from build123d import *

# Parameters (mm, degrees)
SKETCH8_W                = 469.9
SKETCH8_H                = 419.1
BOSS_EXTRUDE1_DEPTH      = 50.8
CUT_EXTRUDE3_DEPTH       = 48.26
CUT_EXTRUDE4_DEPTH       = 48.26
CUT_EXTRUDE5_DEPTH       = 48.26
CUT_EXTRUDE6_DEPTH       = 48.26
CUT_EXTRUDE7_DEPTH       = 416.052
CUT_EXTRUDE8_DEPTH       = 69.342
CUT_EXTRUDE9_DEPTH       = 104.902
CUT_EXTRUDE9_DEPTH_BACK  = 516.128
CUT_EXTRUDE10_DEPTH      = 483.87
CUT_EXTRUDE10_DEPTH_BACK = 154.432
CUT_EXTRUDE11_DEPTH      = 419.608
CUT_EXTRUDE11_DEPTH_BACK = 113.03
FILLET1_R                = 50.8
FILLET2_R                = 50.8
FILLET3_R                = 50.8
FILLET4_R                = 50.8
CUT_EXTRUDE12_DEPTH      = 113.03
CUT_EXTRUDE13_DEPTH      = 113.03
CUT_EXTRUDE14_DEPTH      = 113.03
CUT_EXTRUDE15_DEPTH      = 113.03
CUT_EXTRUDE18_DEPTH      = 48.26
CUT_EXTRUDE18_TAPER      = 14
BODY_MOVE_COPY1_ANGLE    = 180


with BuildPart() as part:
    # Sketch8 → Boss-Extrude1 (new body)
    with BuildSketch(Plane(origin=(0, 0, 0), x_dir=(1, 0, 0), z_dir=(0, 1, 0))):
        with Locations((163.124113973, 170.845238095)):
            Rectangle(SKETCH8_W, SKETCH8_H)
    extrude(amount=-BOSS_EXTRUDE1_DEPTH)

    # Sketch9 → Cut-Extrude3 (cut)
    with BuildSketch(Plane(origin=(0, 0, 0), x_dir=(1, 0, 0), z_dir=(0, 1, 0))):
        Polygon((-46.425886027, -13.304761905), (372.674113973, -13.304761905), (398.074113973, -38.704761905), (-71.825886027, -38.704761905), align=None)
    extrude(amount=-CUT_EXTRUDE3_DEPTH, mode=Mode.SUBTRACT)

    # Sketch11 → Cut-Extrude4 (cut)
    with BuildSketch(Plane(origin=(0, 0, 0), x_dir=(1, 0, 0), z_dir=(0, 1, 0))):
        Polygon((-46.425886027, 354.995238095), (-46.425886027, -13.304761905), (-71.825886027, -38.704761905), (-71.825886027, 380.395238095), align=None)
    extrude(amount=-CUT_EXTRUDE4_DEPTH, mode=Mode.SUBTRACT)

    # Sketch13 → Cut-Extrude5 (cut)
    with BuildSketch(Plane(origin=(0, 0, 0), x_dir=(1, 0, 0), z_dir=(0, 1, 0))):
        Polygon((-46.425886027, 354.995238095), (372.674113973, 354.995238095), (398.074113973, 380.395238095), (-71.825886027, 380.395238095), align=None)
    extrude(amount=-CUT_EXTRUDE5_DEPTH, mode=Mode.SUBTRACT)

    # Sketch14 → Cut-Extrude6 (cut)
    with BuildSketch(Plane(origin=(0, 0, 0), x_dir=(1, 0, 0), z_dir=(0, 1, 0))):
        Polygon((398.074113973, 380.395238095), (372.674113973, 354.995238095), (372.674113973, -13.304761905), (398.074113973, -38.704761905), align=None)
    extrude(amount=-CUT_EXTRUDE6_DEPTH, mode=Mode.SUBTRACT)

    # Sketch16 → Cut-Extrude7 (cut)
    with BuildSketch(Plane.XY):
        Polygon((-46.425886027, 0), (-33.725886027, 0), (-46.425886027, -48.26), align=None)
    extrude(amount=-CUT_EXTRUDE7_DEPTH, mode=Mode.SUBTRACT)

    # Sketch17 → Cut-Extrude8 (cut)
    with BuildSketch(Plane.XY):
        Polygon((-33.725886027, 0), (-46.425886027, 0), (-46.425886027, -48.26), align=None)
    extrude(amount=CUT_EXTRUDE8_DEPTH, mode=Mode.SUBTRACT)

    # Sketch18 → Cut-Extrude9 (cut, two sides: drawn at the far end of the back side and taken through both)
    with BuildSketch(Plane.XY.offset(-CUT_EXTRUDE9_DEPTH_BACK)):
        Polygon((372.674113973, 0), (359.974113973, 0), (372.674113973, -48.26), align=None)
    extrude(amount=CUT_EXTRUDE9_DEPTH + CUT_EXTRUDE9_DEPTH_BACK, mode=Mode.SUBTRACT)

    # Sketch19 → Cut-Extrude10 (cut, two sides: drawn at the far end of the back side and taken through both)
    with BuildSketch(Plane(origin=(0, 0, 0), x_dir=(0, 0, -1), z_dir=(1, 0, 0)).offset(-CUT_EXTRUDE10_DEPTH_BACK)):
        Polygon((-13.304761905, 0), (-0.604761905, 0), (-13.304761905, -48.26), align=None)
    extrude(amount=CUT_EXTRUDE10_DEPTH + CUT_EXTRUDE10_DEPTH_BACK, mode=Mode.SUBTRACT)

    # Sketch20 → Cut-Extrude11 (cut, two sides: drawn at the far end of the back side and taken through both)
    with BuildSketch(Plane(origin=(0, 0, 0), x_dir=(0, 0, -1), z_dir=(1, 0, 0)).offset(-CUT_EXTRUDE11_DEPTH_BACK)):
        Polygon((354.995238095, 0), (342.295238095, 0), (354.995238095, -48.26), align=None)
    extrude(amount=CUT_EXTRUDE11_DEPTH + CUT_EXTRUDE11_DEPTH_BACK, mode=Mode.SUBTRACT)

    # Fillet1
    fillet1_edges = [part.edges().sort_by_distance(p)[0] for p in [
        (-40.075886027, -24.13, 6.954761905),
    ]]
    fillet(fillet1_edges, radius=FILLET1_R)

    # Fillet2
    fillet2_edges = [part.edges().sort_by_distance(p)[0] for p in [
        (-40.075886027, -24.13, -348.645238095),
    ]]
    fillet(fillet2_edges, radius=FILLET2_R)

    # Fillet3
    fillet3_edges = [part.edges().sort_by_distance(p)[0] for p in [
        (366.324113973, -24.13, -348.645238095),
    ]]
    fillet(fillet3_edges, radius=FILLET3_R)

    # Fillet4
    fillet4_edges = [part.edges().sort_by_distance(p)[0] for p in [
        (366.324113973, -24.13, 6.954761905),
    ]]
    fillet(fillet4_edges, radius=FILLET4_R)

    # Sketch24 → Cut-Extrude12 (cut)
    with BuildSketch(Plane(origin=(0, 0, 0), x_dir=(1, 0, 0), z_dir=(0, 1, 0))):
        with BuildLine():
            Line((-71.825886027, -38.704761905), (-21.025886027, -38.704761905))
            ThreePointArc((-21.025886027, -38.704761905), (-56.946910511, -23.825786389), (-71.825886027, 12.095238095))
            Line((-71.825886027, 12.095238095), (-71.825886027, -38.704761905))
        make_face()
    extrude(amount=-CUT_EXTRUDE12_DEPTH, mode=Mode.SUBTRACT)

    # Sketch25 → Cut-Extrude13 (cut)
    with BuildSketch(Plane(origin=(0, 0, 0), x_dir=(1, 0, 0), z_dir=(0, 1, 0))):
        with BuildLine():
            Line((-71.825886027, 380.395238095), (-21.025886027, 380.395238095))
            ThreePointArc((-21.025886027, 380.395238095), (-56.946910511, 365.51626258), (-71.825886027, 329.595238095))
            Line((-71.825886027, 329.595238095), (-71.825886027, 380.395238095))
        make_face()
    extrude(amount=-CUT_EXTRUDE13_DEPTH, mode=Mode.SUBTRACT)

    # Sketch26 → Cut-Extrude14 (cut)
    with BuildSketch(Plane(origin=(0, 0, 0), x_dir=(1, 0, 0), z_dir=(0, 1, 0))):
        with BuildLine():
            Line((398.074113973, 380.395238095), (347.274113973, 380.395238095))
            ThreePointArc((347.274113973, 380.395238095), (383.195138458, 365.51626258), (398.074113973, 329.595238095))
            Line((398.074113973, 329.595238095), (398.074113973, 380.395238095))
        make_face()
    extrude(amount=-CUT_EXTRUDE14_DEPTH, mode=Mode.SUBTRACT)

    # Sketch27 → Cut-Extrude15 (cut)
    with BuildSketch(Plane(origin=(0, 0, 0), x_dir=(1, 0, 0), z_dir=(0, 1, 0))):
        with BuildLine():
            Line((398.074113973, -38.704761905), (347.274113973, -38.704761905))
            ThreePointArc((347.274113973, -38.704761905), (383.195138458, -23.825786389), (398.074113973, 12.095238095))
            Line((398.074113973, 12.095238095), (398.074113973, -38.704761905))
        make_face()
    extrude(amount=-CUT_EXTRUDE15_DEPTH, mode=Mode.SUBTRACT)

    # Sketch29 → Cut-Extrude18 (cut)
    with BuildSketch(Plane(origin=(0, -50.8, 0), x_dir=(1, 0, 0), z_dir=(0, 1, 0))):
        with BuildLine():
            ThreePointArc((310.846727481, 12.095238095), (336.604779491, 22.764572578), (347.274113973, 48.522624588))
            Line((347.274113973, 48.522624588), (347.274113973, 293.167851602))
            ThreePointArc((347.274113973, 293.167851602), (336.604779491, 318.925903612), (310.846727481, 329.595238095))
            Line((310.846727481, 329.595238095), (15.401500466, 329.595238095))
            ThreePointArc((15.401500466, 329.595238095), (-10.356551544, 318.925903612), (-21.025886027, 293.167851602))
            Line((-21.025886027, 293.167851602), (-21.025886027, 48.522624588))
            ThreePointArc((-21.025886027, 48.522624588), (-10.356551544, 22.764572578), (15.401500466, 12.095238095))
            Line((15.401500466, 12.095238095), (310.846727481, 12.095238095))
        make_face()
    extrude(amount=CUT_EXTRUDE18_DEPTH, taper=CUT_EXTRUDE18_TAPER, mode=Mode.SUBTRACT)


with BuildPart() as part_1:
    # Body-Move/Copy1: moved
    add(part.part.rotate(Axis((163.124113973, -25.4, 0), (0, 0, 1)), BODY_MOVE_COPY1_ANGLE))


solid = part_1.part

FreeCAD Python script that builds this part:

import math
import FreeCAD as App
import Part
import Sketcher

V = App.Vector
Q = App.Units.Quantity


def edges_at(feature, points):
    """Names of the edges that pass closest to the given points."""
    edges = feature.Shape.Edges
    near = lambda p: min(range(len(edges)), key=lambda i: edges[i].distToShape(Part.Vertex(*p))[0])
    return sorted({f"Edge{near(p) + 1}" for p in points})


def add_polygon(sketch, points):
    """Adds a closed chain of lines whose ends are joined by coincident constraints."""
    first, n = sketch.GeometryCount, len(points)
    for a, b in zip(points, points[1:] + points[:1]):
        sketch.addGeometry(Part.LineSegment(App.Vector(*a, 0), App.Vector(*b, 0)), False)
    for i in range(n):
        sketch.addConstraint(Sketcher.Constraint("Coincident", first + i, 2, first + (i + 1) % n, 1))

doc = App.newDocument("Part")
body = doc.addObject("PartDesign::Body", "Body")

# Sketch on XZ plane
sketch1 = body.newObject("Sketcher::SketchObject", "Sketch")
sketch1.AttachmentSupport = (doc.getObject("XZ_Plane"), [""])
sketch1.MapMode = "FlatFace"
add_polygon(sketch1, [(-72, -380), (-72, 39), (398, 39), (398, -380)])  # lines 0-3
sketch1.addConstraint([
    Sketcher.Constraint("Vertical", 0),
    Sketcher.Constraint("Horizontal", 1),
    Sketcher.Constraint("Vertical", 2),
    Sketcher.Constraint("Horizontal", 3),
    Sketcher.Constraint("DistanceX", 1, 1, 1, 2, Q("18.5 in")),
    Sketcher.Constraint("DistanceY", 0, 1, 0, 2, Q("16.5 in")),
    Sketcher.Constraint("DistanceY", -1, 1, 0, 2, 38.704762),
    Sketcher.Constraint("DistanceX", 0, 2, -1, 1, 71.825886),
])
pad1 = body.newObject("PartDesign::Pad", "Pad")
pad1.Profile = sketch1
pad1.Length = Q("2 in")

# Sketch on XZ plane
sketch2 = body.newObject("Sketcher::SketchObject", "Sketch001")
sketch2.AttachmentSupport = (doc.getObject("XZ_Plane"), [""])
sketch2.MapMode = "FlatFace"
add_polygon(sketch2, [(373, 13), (-46, 13), (-72, 39), (398, 39)])  # lines 0-3
sketch2.addConstraint([
    Sketcher.Constraint("Horizontal", 0),
    Sketcher.Constraint("Horizontal", 2),
    Sketcher.Constraint("Perpendicular", 1, 3),
    Sketcher.Constraint("Equal", 1, 3),
    Sketcher.Constraint("DistanceX", 0, 2, 0, 1, Q("16.5 in")),
    Sketcher.Constraint("DistanceX", 2, 1, 2, 2, Q("18.5 in")),
    Sketcher.Constraint("DistanceY", -1, 1, 0, 2, 13.304762),
    Sketcher.Constraint("DistanceX", 0, 2, -1, 1, 46.425886),
])
pocket1 = body.newObject("PartDesign::Pocket", "Pocket")
pocket1.Profile = sketch2
pocket1.Length = Q("1.9 in")
pocket1.Reversed = True

# Sketch on XZ plane
sketch3 = body.newObject("Sketcher::SketchObject", "Sketch002")
sketch3.AttachmentSupport = (doc.getObject("XZ_Plane"), [""])
sketch3.MapMode = "FlatFace"
add_polygon(sketch3, [(-46, 13), (-46, -355), (-72, -380), (-72, 39)])  # lines 0-3
sketch3.addConstraint([
    Sketcher.Constraint("Vertical", 0),
    Sketcher.Constraint("Vertical", 2),
    Sketcher.Constraint("Perpendicular", 1, 3),
    Sketcher.Constraint("Equal", 1, 3),
    Sketcher.Constraint("DistanceY", 0, 2, 0, 1, Q("14.5 in")),
    Sketcher.Constraint("DistanceY", 2, 1, 2, 2, Q("16.5 in")),
    Sketcher.Constraint("DistanceY", 0, 2, -1, 1, 354.995238),
    Sketcher.Constraint("DistanceX", 0, 2, -1, 1, 46.425886),
])
pocket2 = body.newObject("PartDesign::Pocket", "Pocket001")
pocket2.Profile = sketch3
pocket2.Length = Q("1.9 in")
pocket2.Reversed = True

# Sketch on XZ plane
sketch4 = body.newObject("Sketcher::SketchObject", "Sketch003")
sketch4.AttachmentSupport = (doc.getObject("XZ_Plane"), [""])
sketch4.MapMode = "FlatFace"
add_polygon(sketch4, [(-46, -355), (373, -355), (398, -380), (-72, -380)])  # lines 0-3
sketch4.addConstraint([
    Sketcher.Constraint("Horizontal", 0),
    Sketcher.Constraint("Horizontal", 2),
    Sketcher.Constraint("Perpendicular", 1, 3),
    Sketcher.Constraint("Equal", 1, 3),
    Sketcher.Constraint("DistanceX", 0, 1, 0, 2, Q("16.5 in")),
    Sketcher.Constraint("DistanceX", 2, 2, 2, 1, Q("18.5 in")),
    Sketcher.Constraint("DistanceY", 0, 2, -1, 1, 354.995238),
    Sketcher.Constraint("DistanceX", -1, 1, 0, 2, 372.674114),
])
pocket3 = body.newObject("PartDesign::Pocket", "Pocket002")
pocket3.Profile = sketch4
pocket3.Length = Q("1.9 in")
pocket3.Reversed = True

# Sketch on XZ plane
sketch5 = body.newObject("Sketcher::SketchObject", "Sketch004")
sketch5.AttachmentSupport = (doc.getObject("XZ_Plane"), [""])
sketch5.MapMode = "FlatFace"
add_polygon(sketch5, [(398, -380), (373, -355), (373, 13), (398, 39)])  # lines 0-3
sketch5.addConstraint([
    Sketcher.Constraint("Vertical", 1),
    Sketcher.Constraint("Vertical", 3),
    Sketcher.Constraint("Perpendicular", 0, 2),
    Sketcher.Constraint("Equal", 0, 2),
    Sketcher.Constraint("DistanceY", 1, 1, 1, 2, Q("14.5 in")),
    Sketcher.Constraint("DistanceY", 3, 2, 3, 1, Q("16.5 in")),
    Sketcher.Constraint("DistanceY", 0, 2, -1, 1, 354.995238),
    Sketcher.Constraint("DistanceX", -1, 1, 0, 2, 372.674114),
])
pocket4 = body.newObject("PartDesign::Pocket", "Pocket003")
pocket4.Profile = sketch5
pocket4.Length = Q("1.9 in")
pocket4.Reversed = True

# Sketch on XY plane
sketch6 = body.newObject("Sketcher::SketchObject", "Sketch005")
sketch6.AttachmentSupport = (doc.getObject("XY_Plane"), [""])
sketch6.MapMode = "FlatFace"
add_polygon(sketch6, [(-34, 0), (-46, 0), (-46, -48)])  # lines 0-2
sketch6.addConstraint([
    Sketcher.Constraint("Horizontal", 0),
    Sketcher.Constraint("Vertical", 1),
    Sketcher.Constraint("PointOnObject", 0, 2, -1),
    Sketcher.Constraint("DistanceX", 0, 2, 0, 1, Q("0.5 in")),
    Sketcher.Constraint("DistanceY", 1, 2, 1, 1, Q("1.9 in")),
    Sketcher.Constraint("DistanceX", 0, 2, -1, 1, 46.425886),
])
pocket5 = body.newObject("PartDesign::Pocket", "Pocket004")
pocket5.Profile = sketch6
pocket5.Length = Q("16.38 in")

# Sketch on XY plane
sketch7 = body.newObject("Sketcher::SketchObject", "Sketch006")
sketch7.AttachmentSupport = (doc.getObject("XY_Plane"), [""])
sketch7.MapMode = "FlatFace"
add_polygon(sketch7, [(-34, 0), (-46, 0), (-46, -48)])  # lines 0-2
sketch7.addConstraint([
    Sketcher.Constraint("Horizontal", 0),
    Sketcher.Constraint("Vertical", 1),
    Sketcher.Constraint("PointOnObject", 0, 2, -1),
    Sketcher.Constraint("DistanceX", 0, 2, 0, 1, Q("0.5 in")),
    Sketcher.Constraint("DistanceY", 1, 2, 1, 1, Q("1.9 in")),
    Sketcher.Constraint("DistanceX", 0, 2, -1, 1, 46.425886),
])
pocket6 = body.newObject("PartDesign::Pocket", "Pocket005")
pocket6.Profile = sketch7
pocket6.Length = Q("2.73 in")
pocket6.Reversed = True

# Sketch on XY plane
sketch8 = body.newObject("Sketcher::SketchObject", "Sketch007")
sketch8.AttachmentSupport = (doc.getObject("XY_Plane"), [""])
sketch8.MapMode = "FlatFace"
add_polygon(sketch8, [(373, 0), (360, 0), (373, -48)])  # lines 0-2
sketch8.addConstraint([
    Sketcher.Constraint("Horizontal", 0),
    Sketcher.Constraint("Vertical", 2),
    Sketcher.Constraint("PointOnObject", 0, 2, -1),
    Sketcher.Constraint("DistanceX", 0, 2, 0, 1, Q("0.5 in")),
    Sketcher.Constraint("DistanceY", 2, 1, 2, 2, Q("1.9 in")),
    Sketcher.Constraint("DistanceX", -1, 1, 0, 2, 359.974114),
])
pocket7 = body.newObject("PartDesign::Pocket", "Pocket006")
pocket7.Profile = sketch8
pocket7.Type = "ThroughAll"
pocket7.Midplane = True

# Sketch on YZ plane
sketch9 = body.newObject("Sketcher::SketchObject", "Sketch008")
sketch9.AttachmentSupport = (doc.getObject("YZ_Plane"), [""])
sketch9.MapMode = "FlatFace"
add_polygon(sketch9, [(0, 1), (0, 13), (-48, 13)])  # lines 0-2
sketch9.addConstraint([
    Sketcher.Constraint("Vertical", 0),
    Sketcher.Constraint("Horizontal", 1),
    Sketcher.Constraint("PointOnObject", 0, 2, -2),
    Sketcher.Constraint("DistanceX", 1, 2, 1, 1, Q("1.9 in")),
    Sketcher.Constraint("DistanceY", 0, 1, 0, 2, Q("0.5 in")),
    Sketcher.Constraint("DistanceY", -1, 1, 0, 2, 13.304762),
])
pocket8 = body.newObject("PartDesign::Pocket", "Pocket007")
pocket8.Profile = sketch9
pocket8.Type = "ThroughAll"
pocket8.Midplane = True

# Sketch on YZ plane
sketch10 = body.newObject("Sketcher::SketchObject", "Sketch009")
sketch10.AttachmentSupport = (doc.getObject("YZ_Plane"), [""])
sketch10.MapMode = "FlatFace"
add_polygon(sketch10, [(0, -355), (0, -342), (-48, -355)])  # lines 0-2
sketch10.addConstraint([
    Sketcher.Constraint("Vertical", 0),
    Sketcher.Constraint("Horizontal", 2),
    Sketcher.Constraint("PointOnObject", 0, 2, -2),
    Sketcher.Constraint("DistanceX", 2, 1, 2, 2, Q("1.9 in")),
    Sketcher.Constraint("DistanceY", 0, 1, 0, 2, Q("0.5 in")),
    Sketcher.Constraint("DistanceY", 0, 2, -1, 1, 342.295238),
])
pocket9 = body.newObject("PartDesign::Pocket", "Pocket008")
pocket9.Profile = sketch10
pocket9.Type = "ThroughAll"
pocket9.Midplane = True
doc.recompute()

fillet = body.newObject("PartDesign::Fillet", "Fillet")
fillet.Base = (pocket9, edges_at(pocket9, [(-40.076, -24.13, 6.955)]))
fillet.Radius = Q("2 in")
doc.recompute()

fillet2 = body.newObject("PartDesign::Fillet", "Fillet001")
fillet2.Base = (fillet, edges_at(fillet, [(-40.076, -24.13, -348.645)]))
fillet2.Radius = Q("2 in")
doc.recompute()

fillet3 = body.newObject("PartDesign::Fillet", "Fillet002")
fillet3.Base = (fillet2, edges_at(fillet2, [(366.324, -24.13, -348.645)]))
fillet3.Radius = Q("2 in")
doc.recompute()

fillet4 = body.newObject("PartDesign::Fillet", "Fillet003")
fillet4.Base = (fillet3, edges_at(fillet3, [(366.324, -24.13, 6.955)]))
fillet4.Radius = Q("2 in")

# Sketch on XZ plane
sketch11 = body.newObject("Sketcher::SketchObject", "Sketch010")
sketch11.AttachmentSupport = (doc.getObject("XZ_Plane"), [""])
sketch11.MapMode = "FlatFace"
sketch11.addGeometry([
    Part.LineSegment(V(-72, 39, 0), V(-21, 39, 0)),
    Part.ArcOfCircle(Part.Circle(V(-21, -12, 0), V(0, 0, 1), 51), math.radians(90), math.radians(180)),
    Part.LineSegment(V(-72, -12, 0), V(-72, 39, 0)),
], False)
sketch11.addConstraint([
    Sketcher.Constraint("Tangent", 0, 2, 1, 1),
    Sketcher.Constraint("Tangent", 1, 2, 2, 1),
    Sketcher.Constraint("Coincident", 2, 2, 0, 1),
    Sketcher.Constraint("Horizontal", 0),
    Sketcher.Constraint("Vertical", 2),
    Sketcher.Constraint("Radius", 1, Q("2 in")),
    Sketcher.Constraint("DistanceY", 1, 3, -1, 1, 12.095238),
    Sketcher.Constraint("DistanceX", 1, 3, -1, 1, 21.025886),
])
pocket10 = body.newObject("PartDesign::Pocket", "Pocket009")
pocket10.Profile = sketch11
pocket10.Length = Q("4.45 in")
pocket10.Reversed = True

# Sketch on XZ plane
sketch12 = body.newObject("Sketcher::SketchObject", "Sketch011")
sketch12.AttachmentSupport = (doc.getObject("XZ_Plane"), [""])
sketch12.MapMode = "FlatFace"
sketch12.addGeometry([
    Part.LineSegment(V(-21, -380, 0), V(-72, -380, 0)),
    Part.LineSegment(V(-72, -380, 0), V(-72, -330, 0)),
    Part.ArcOfCircle(Part.Circle(V(-21, -330, 0), V(0, 0, 1), 51), math.radians(180), math.radians(270)),
], False)
sketch12.addConstraint([
    Sketcher.Constraint("Coincident", 0, 2, 1, 1),
    Sketcher.Constraint("Tangent", 1, 2, 2, 1),
    Sketcher.Constraint("Tangent", 2, 2, 0, 1),
    Sketcher.Constraint("Horizontal", 0),
    Sketcher.Constraint("Vertical", 1),
    Sketcher.Constraint("Radius", 2, Q("2 in")),
    Sketcher.Constraint("DistanceY", 2, 3, -1, 1, 329.595238),
    Sketcher.Constraint("DistanceX", 2, 3, -1, 1, 21.025886),
])
pocket11 = body.newObject("PartDesign::Pocket", "Pocket010")
pocket11.Profile = sketch12
pocket11.Length = Q("4.45 in")
pocket11.Reversed = True

# Sketch on XZ plane
sketch13 = body.newObject("Sketcher::SketchObject", "Sketch012")
sketch13.AttachmentSupport = (doc.getObject("XZ_Plane"), [""])
sketch13.MapMode = "FlatFace"
sketch13.addGeometry([
    Part.LineSegment(V(398, -380, 0), V(347, -380, 0)),
    Part.ArcOfCircle(Part.Circle(V(347, -330, 0), V(0, 0, 1), 51), math.radians(-90), math.radians(0)),
    Part.LineSegment(V(398, -330, 0), V(398, -380, 0)),
], False)
sketch13.addConstraint([
    Sketcher.Constraint("Tangent", 0, 2, 1, 1),
    Sketcher.Constraint("Tangent", 1, 2, 2, 1),
    Sketcher.Constraint("Coincident", 2, 2, 0, 1),
    Sketcher.Constraint("Horizontal", 0),
    Sketcher.Constraint("Vertical", 2),
    Sketcher.Constraint("Radius", 1, Q("2 in")),
    Sketcher.Constraint("DistanceY", 1, 3, -1, 1, 329.595238),
    Sketcher.Constraint("DistanceX", -1, 1, 1, 3, 347.274114),
])
pocket12 = body.newObject("PartDesign::Pocket", "Pocket011")
pocket12.Profile = sketch13
pocket12.Length = Q("4.45 in")
pocket12.Reversed = True

# Sketch on XZ plane
sketch14 = body.newObject("Sketcher::SketchObject", "Sketch013")
sketch14.AttachmentSupport = (doc.getObject("XZ_Plane"), [""])
sketch14.MapMode = "FlatFace"
sketch14.addGeometry([
    Part.LineSegment(V(347, 39, 0), V(398, 39, 0)),
    Part.LineSegment(V(398, 39, 0), V(398, -12, 0)),
    Part.ArcOfCircle(Part.Circle(V(347, -12, 0), V(0, 0, 1), 51), math.radians(0), math.radians(90)),
], False)
sketch14.addConstraint([
    Sketcher.Constraint("Coincident", 0, 2, 1, 1),
    Sketcher.Constraint("Tangent", 1, 2, 2, 1),
    Sketcher.Constraint("Tangent", 2, 2, 0, 1),
    Sketcher.Constraint("Horizontal", 0),
    Sketcher.Constraint("Vertical", 1),
    Sketcher.Constraint("Radius", 2, Q("2 in")),
    Sketcher.Constraint("DistanceY", 2, 3, -1, 1, 12.095238),
    Sketcher.Constraint("DistanceX", -1, 1, 2, 3, 347.274114),
])
pocket13 = body.newObject("PartDesign::Pocket", "Pocket012")
pocket13.Profile = sketch14
pocket13.Length = Q("4.45 in")
pocket13.Reversed = True

# Sketch on XZ plane
sketch15 = body.newObject("Sketcher::SketchObject", "Sketch014")
sketch15.AttachmentSupport = (doc.getObject("XZ_Plane"), [""])
sketch15.MapMode = "FlatFace"
sketch15.AttachmentOffset = App.Placement(V(0, 0, 2 * 25.4), App.Rotation())
sketch15.addGeometry([
    Part.ArcOfCircle(Part.Circle(V(311, -49, 0), V(0, 0, 1), 36), math.radians(0), math.radians(90)),  # 0
    Part.LineSegment(V(347, -49, 0), V(347, -293, 0)),  # 1
    Part.ArcOfCircle(Part.Circle(V(311, -293, 0), V(0, 0, 1), 36), math.radians(-90), math.radians(0)),  # 2
    Part.LineSegment(V(311, -330, 0), V(15, -330, 0)),  # 3
    Part.ArcOfCircle(Part.Circle(V(15, -293, 0), V(0, 0, 1), 36), math.radians(180), math.radians(270)),  # 4
    Part.LineSegment(V(-21, -293, 0), V(-21, -49, 0)),  # 5
    Part.ArcOfCircle(Part.Circle(V(15, -49, 0), V(0, 0, 1), 36), math.radians(90), math.radians(180)),  # 6
    Part.LineSegment(V(15, -12, 0), V(311, -12, 0)),  # 7
], False)
sketch15.addConstraint([
    Sketcher.Constraint("Tangent", 0, 1, 1, 1),
    Sketcher.Constraint("Tangent", 1, 2, 2, 2),
    Sketcher.Constraint("Tangent", 2, 1, 3, 1),
    Sketcher.Constraint("Tangent", 3, 2, 4, 2),
    Sketcher.Constraint("Tangent", 4, 1, 5, 1),
    Sketcher.Constraint("Tangent", 5, 2, 6, 2),
    Sketcher.Constraint("Tangent", 6, 1, 7, 1),
    Sketcher.Constraint("Tangent", 7, 2, 0, 2),
    Sketcher.Constraint("Vertical", 1),
    Sketcher.Constraint("Horizontal", 3),
    Sketcher.Constraint("Vertical", 5),
    Sketcher.Constraint("Horizontal", 7),
    Sketcher.Constraint("Equal", 0, 2),
    Sketcher.Constraint("Equal", 2, 4),
    Sketcher.Constraint("Equal", 4, 6),
    Sketcher.Constraint("Radius", 0, 36.427386),
    Sketcher.Constraint("DistanceX", -1, 1, 4, 3, 15.4015),
    Sketcher.Constraint("DistanceX", 3, 2, 3, 1, 295.445227),
    Sketcher.Constraint("DistanceY", 1, 2, 1, 1, 244.645227),
    Sketcher.Constraint("DistanceY", 2, 3, -1, 1, 293.167852),
])
pocket14 = body.newObject("PartDesign::Pocket", "Pocket013")
pocket14.Profile = sketch15
pocket14.Length = Q("1.9 in")
pocket14.TaperAngle = -14
body2 = doc.addObject("PartDesign::Body", "Body001")
doc.recompute()

body.Placement = App.Placement(V(326.248228, -50.8, 0), App.Rotation(V(0, 0, 1), 180))
boolean = body2.newObject("PartDesign::Boolean", "Boolean")
boolean.Type = "Fuse"
boolean.addObjects([body])

doc.recompute()
